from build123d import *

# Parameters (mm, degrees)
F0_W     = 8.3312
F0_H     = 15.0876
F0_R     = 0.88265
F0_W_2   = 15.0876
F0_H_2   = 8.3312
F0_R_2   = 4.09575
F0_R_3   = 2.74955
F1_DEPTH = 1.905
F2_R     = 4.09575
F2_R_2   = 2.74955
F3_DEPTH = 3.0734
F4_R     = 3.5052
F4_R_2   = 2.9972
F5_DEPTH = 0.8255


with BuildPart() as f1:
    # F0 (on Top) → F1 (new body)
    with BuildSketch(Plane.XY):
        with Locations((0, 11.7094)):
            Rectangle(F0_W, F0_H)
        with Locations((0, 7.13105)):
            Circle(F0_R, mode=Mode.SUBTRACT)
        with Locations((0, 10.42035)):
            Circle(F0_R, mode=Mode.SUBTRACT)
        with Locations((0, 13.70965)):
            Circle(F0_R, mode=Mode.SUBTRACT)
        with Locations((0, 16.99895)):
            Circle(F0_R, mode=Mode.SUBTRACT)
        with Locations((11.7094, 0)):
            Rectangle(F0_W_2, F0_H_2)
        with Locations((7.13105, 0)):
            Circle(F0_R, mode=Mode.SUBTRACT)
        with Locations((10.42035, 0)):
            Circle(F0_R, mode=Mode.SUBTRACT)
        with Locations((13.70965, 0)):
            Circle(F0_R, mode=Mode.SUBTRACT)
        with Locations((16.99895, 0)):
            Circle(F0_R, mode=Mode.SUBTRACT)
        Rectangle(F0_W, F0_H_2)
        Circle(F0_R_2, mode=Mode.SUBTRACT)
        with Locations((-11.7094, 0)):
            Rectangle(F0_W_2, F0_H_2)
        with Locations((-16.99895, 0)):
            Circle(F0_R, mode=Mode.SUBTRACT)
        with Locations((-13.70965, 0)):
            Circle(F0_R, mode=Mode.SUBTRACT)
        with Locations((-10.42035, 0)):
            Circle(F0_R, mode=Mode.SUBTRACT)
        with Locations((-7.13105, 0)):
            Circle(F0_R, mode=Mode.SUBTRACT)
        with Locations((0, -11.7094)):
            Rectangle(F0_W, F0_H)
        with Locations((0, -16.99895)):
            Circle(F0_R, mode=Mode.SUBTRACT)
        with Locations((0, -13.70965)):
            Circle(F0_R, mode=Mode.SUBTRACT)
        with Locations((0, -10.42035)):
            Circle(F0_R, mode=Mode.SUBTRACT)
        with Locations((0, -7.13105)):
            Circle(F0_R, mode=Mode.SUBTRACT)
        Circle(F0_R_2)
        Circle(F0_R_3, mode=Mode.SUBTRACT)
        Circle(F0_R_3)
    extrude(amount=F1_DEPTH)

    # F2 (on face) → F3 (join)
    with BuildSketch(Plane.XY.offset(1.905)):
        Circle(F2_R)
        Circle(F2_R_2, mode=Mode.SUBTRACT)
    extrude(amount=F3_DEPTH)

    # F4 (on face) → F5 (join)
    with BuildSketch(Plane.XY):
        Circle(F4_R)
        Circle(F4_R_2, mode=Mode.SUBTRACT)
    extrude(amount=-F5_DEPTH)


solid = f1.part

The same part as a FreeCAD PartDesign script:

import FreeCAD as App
import Part
import Sketcher

V = App.Vector
Q = App.Units.Quantity

doc = App.newDocument("Part")
body = doc.addObject("PartDesign::Body", "Body")

sketch1 = body.newObject("Sketcher::SketchObject", "Sketch")
sketch1.AttachmentSupport = (doc.getObject("XY_Plane"), [""])
sketch1.MapMode = "FlatFace"
sketch1.addGeometry(Part.LineSegment(V(-4.2, 19.3, 0), V(-4.2, 4.2, 0)), False)
sketch1.addGeometry(Part.LineSegment(V(-4.2, 4.2, 0), V(-19.3, 4.2, 0)), False)
sketch1.addGeometry(Part.LineSegment(V(-19.3, 4.2, 0), V(-19.3, -4.2, 0)), False)
sketch1.addGeometry(Part.LineSegment(V(-19.3, -4.2, 0), V(-4.2, -4.2, 0)), False)
sketch1.addGeometry(Part.LineSegment(V(-4.2, -4.2, 0), V(-4.2, -19.3, 0)), False)
sketch1.addGeometry(Part.LineSegment(V(-4.2, -19.3, 0), V(4.2, -19.3, 0)), False)
sketch1.addGeometry(Part.LineSegment(V(4.2, -19.3, 0), V(4.2, -4.2, 0)), False)
sketch1.addGeometry(Part.LineSegment(V(4.2, -4.2, 0), V(19.3, -4.2, 0)), False)
sketch1.addGeometry(Part.LineSegment(V(19.3, -4.2, 0), V(19.3, 4.2, 0)), False)
sketch1.addGeometry(Part.LineSegment(V(19.3, 4.2, 0), V(4.2, 4.2, 0)), False)
sketch1.addGeometry(Part.LineSegment(V(4.2, 4.2, 0), V(4.2, 19.3, 0)), False)
sketch1.addGeometry(Part.LineSegment(V(4.2, 19.3, 0), V(-4.2, 19.3, 0)), False)
sketch1.addGeometry(Part.Circle(V(0, -17, 0), V(0, 0, 1), 0.9), False)
sketch1.addGeometry(Part.Circle(V(0, -13.7, 0), V(0, 0, 1), 0.9), False)
sketch1.addGeometry(Part.Circle(V(0, -10.4, 0), V(0, 0, 1), 0.9), False)
sketch1.addGeometry(Part.Circle(V(0, -7.1, 0), V(0, 0, 1), 0.9), False)
sketch1.addGeometry(Part.Circle(V(-17, 0, 0), V(0, 0, 1), 0.9), False)
sketch1.addGeometry(Part.Circle(V(-13.7, 0, 0), V(0, 0, 1), 0.9), False)
sketch1.addGeometry(Part.Circle(V(-10.4, 0, 0), V(0, 0, 1), 0.9), False)
sketch1.addGeometry(Part.Circle(V(-7.1, 0, 0), V(0, 0, 1), 0.9), False)
sketch1.addGeometry(Part.Circle(V(7.1, 0, 0), V(0, 0, 1), 0.9), False)
sketch1.addGeometry(Part.Circle(V(0, 7.1, 0), V(0, 0, 1), 0.9), False)
sketch1.addGeometry(Part.Circle(V(10.4, 0, 0), V(0, 0, 1), 0.9), False)
sketch1.addGeometry(Part.Circle(V(13.7, 0, 0), V(0, 0, 1), 0.9), False)
sketch1.addGeometry(Part.Circle(V(17, 0, 0), V(0, 0, 1), 0.9), False)
sketch1.addGeometry(Part.Circle(V(0, 10.4, 0), V(0, 0, 1), 0.9), False)
sketch1.addGeometry(Part.Circle(V(0, 13.7, 0), V(0, 0, 1), 0.9), False)
sketch1.addGeometry(Part.Circle(V(0, 17, 0), V(0, 0, 1), 0.9), False)
sketch1.addConstraint(Sketcher.Constraint("Coincident", 0, 2, 1, 1))
sketch1.addConstraint(Sketcher.Constraint("Coincident", 1, 2, 2, 1))
sketch1.addConstraint(Sketcher.Constraint("Coincident", 2, 2, 3, 1))
sketch1.addConstraint(Sketcher.Constraint("Coincident", 3, 2, 4, 1))
sketch1.addConstraint(Sketcher.Constraint("Coincident", 4, 2, 5, 1))
sketch1.addConstraint(Sketcher.Constraint("Coincident", 5, 2, 6, 1))
sketch1.addConstraint(Sketcher.Constraint("Coincident", 6, 2, 7, 1))
sketch1.addConstraint(Sketcher.Constraint("Coincident", 7, 2, 8, 1))
sketch1.addConstraint(Sketcher.Constraint("Coincident", 8, 2, 9, 1))
sketch1.addConstraint(Sketcher.Constraint("Coincident", 9, 2, 10, 1))
sketch1.addConstraint(Sketcher.Constraint("Coincident", 10, 2, 11, 1))
sketch1.addConstraint(Sketcher.Constraint("Coincident", 11, 2, 0, 1))
sketch1.addConstraint(Sketcher.Constraint("Vertical", 0))
sketch1.addConstraint(Sketcher.Constraint("Horizontal", 1))
sketch1.addConstraint(Sketcher.Constraint("Vertical", 2))
sketch1.addConstraint(Sketcher.Constraint("Horizontal", 3))
sketch1.addConstraint(Sketcher.Constraint("Vertical", 4))
sketch1.addConstraint(Sketcher.Constraint("Horizontal", 5))
sketch1.addConstraint(Sketcher.Constraint("Vertical", 6))
sketch1.addConstraint(Sketcher.Constraint("Horizontal", 7))
sketch1.addConstraint(Sketcher.Constraint("Vertical", 8))
sketch1.addConstraint(Sketcher.Constraint("Horizontal", 9))
sketch1.addConstraint(Sketcher.Constraint("Vertical", 10))
sketch1.addConstraint(Sketcher.Constraint("Horizontal", 11))
sketch1.addConstraint(Sketcher.Constraint("Equal", 12, 13))
sketch1.addConstraint(Sketcher.Constraint("Equal", 13, 14))
sketch1.addConstraint(Sketcher.Constraint("Equal", 14, 15))
sketch1.addConstraint(Sketcher.Constraint("Equal", 15, 16))
sketch1.addConstraint(Sketcher.Constraint("Equal", 16, 17))
sketch1.addConstraint(Sketcher.Constraint("Equal", 17, 18))
sketch1.addConstraint(Sketcher.Constraint("Equal", 18, 19))
sketch1.addConstraint(Sketcher.Constraint("Equal", 19, 20))
sketch1.addConstraint(Sketcher.Constraint("Equal", 20, 21))
sketch1.addConstraint(Sketcher.Constraint("Equal", 21, 22))
sketch1.addConstraint(Sketcher.Constraint("Equal", 22, 23))
sketch1.addConstraint(Sketcher.Constraint("Equal", 23, 24))
sketch1.addConstraint(Sketcher.Constraint("Equal", 24, 25))
sketch1.addConstraint(Sketcher.Constraint("Equal", 25, 26))
sketch1.addConstraint(Sketcher.Constraint("Equal", 26, 27))
sketch1.addConstraint(Sketcher.Constraint("Symmetric", 19, 3, 20, 3, -1, 1))
sketch1.addConstraint(Sketcher.Constraint("Symmetric", 15, 3, 21, 3, -1, 1))
sketch1.addConstraint(Sketcher.Constraint("Symmetric", 18, 3, 22, 3, -1, 1))
sketch1.addConstraint(Sketcher.Constraint("Symmetric", 17, 3, 23, 3, -1, 1))
sketch1.addConstraint(Sketcher.Constraint("Symmetric", 16, 3, 24, 3, -1, 1))
sketch1.addConstraint(Sketcher.Constraint("Symmetric", 14, 3, 25, 3, -1, 1))
sketch1.addConstraint(Sketcher.Constraint("Symmetric", 13, 3, 26, 3, -1, 1))
sketch1.addConstraint(Sketcher.Constraint("Symmetric", 12, 3, 27, 3, -1, 1))
sketch1.addConstraint(Sketcher.Constraint("Symmetric", 0, 2, 6, 2, -1, 1))
sketch1.addConstraint(Sketcher.Constraint("Symmetric", 2, 2, 8, 2, -1, 1))
sketch1.addConstraint(Sketcher.Constraint("Symmetric", 4, 2, 10, 2, -1, 1))
sketch1.addConstraint(Sketcher.Constraint("Symmetric", 3, 2, 6, 2, -2))
sketch1.addConstraint(Sketcher.Constraint("PointOnObject", 12, 3, -2))
sketch1.addConstraint(Sketcher.Constraint("PointOnObject", 13, 3, -2))
sketch1.addConstraint(Sketcher.Constraint("PointOnObject", 14, 3, -2))
sketch1.addConstraint(Sketcher.Constraint("PointOnObject", 15, 3, -2))
sketch1.addConstraint(Sketcher.Constraint("PointOnObject", 16, 3, -1))
sketch1.addConstraint(Sketcher.Constraint("PointOnObject", 17, 3, -1))
sketch1.addConstraint(Sketcher.Constraint("PointOnObject", 18, 3, -1))
sketch1.addConstraint(Sketcher.Constraint("PointOnObject", 19, 3, -1))
sketch1.addConstraint(Sketcher.Constraint("Equal", 9, 0))
sketch1.addConstraint(Sketcher.Constraint("Equal", 11, 2))
sketch1.addConstraint(Sketcher.Constraint("Diameter", 12, Q("0.0695 in")))
sketch1.addConstraint(Sketcher.Constraint("DistanceX", 1, 2, 1, 1, Q("0.594 in")))
sketch1.addConstraint(Sketcher.Constraint("DistanceX", 5, 1, 5, 2, Q("0.328 in")))
sketch1.addConstraint(Sketcher.Constraint("DistanceY", 12, 3, 14, 3, Q("0.259 in")))
sketch1.addConstraint(Sketcher.Constraint("DistanceY", 13, 3, 15, 3, Q("0.259 in")))
sketch1.addConstraint(Sketcher.Constraint("DistanceX", 16, 3, 18, 3, Q("0.259 in")))
sketch1.addConstraint(Sketcher.Constraint("DistanceX", 17, 3, 19, 3, Q("0.259 in")))
sketch1.addConstraint(Sketcher.Constraint("DistanceX", 18, 3, 20, 3, Q("0.691 in")))
sketch1.addConstraint(Sketcher.Constraint("DistanceY", 12, 3, 13, 3, Q("0.1295 in")))
sketch1.addConstraint(Sketcher.Constraint("DistanceX", 16, 3, 17, 3, Q("0.1295 in")))
sketch1.addConstraint(Sketcher.Constraint("DistanceY", 15, 3, 21, 3, Q("0.5615 in")))
pad1 = body.newObject("PartDesign::Pad", "Pad")
pad1.Profile = sketch1
pad1.Length = Q("0.075 in")

sketch2 = body.newObject("Sketcher::SketchObject", "Sketch001")
sketch2.AttachmentSupport = (doc.getObject("XY_Plane"), [""])
sketch2.MapMode = "FlatFace"
sketch2.AttachmentOffset = App.Placement(V(0, 0, 0.075 * 25.4), App.Rotation())
sketch2.addGeometry(Part.Circle(V(0, 0, 0), V(0, 0, 1), 4.1), False)
sketch2.addGeometry(Part.Circle(V(0, 0, 0), V(0, 0, 1), 2.7), False)
sketch2.addConstraint(Sketcher.Constraint("Coincident", 0, 3, -1, 1))
sketch2.addConstraint(Sketcher.Constraint("Coincident", 1, 3, -1, 1))
sketch2.addConstraint(Sketcher.Constraint("Diameter", 0, Q("0.3225 in")))
sketch2.addConstraint(Sketcher.Constraint("Diameter", 1, Q("0.2165 in")))
pad2 = body.newObject("PartDesign::Pad", "Pad001")
pad2.Profile = sketch2
pad2.Length = Q("0.121 in")

sketch3 = body.newObject("Sketcher::SketchObject", "Sketch002")
sketch3.AttachmentSupport = (doc.getObject("XY_Plane"), [""])
sketch3.MapMode = "FlatFace"
sketch3.addGeometry(Part.Circle(V(0, 0, 0), V(0, 0, 1), 3.5), False)
sketch3.addGeometry(Part.Circle(V(0, 0, 0), V(0, 0, 1), 3), False)
sketch3.addConstraint(Sketcher.Constraint("Coincident", 0, 3, -1, 1))
sketch3.addConstraint(Sketcher.Constraint("Coincident", 1, 3, -1, 1))
sketch3.addConstraint(Sketcher.Constraint("Diameter", 0, Q("0.276 in")))
sketch3.addConstraint(Sketcher.Constraint("Diameter", 1, Q("0.236 in")))
pad3 = body.newObject("PartDesign::Pad", "Pad002")
pad3.Profile = sketch3
pad3.Length = Q("0.0325 in")
pad3.Reversed = True

doc.recompute()
